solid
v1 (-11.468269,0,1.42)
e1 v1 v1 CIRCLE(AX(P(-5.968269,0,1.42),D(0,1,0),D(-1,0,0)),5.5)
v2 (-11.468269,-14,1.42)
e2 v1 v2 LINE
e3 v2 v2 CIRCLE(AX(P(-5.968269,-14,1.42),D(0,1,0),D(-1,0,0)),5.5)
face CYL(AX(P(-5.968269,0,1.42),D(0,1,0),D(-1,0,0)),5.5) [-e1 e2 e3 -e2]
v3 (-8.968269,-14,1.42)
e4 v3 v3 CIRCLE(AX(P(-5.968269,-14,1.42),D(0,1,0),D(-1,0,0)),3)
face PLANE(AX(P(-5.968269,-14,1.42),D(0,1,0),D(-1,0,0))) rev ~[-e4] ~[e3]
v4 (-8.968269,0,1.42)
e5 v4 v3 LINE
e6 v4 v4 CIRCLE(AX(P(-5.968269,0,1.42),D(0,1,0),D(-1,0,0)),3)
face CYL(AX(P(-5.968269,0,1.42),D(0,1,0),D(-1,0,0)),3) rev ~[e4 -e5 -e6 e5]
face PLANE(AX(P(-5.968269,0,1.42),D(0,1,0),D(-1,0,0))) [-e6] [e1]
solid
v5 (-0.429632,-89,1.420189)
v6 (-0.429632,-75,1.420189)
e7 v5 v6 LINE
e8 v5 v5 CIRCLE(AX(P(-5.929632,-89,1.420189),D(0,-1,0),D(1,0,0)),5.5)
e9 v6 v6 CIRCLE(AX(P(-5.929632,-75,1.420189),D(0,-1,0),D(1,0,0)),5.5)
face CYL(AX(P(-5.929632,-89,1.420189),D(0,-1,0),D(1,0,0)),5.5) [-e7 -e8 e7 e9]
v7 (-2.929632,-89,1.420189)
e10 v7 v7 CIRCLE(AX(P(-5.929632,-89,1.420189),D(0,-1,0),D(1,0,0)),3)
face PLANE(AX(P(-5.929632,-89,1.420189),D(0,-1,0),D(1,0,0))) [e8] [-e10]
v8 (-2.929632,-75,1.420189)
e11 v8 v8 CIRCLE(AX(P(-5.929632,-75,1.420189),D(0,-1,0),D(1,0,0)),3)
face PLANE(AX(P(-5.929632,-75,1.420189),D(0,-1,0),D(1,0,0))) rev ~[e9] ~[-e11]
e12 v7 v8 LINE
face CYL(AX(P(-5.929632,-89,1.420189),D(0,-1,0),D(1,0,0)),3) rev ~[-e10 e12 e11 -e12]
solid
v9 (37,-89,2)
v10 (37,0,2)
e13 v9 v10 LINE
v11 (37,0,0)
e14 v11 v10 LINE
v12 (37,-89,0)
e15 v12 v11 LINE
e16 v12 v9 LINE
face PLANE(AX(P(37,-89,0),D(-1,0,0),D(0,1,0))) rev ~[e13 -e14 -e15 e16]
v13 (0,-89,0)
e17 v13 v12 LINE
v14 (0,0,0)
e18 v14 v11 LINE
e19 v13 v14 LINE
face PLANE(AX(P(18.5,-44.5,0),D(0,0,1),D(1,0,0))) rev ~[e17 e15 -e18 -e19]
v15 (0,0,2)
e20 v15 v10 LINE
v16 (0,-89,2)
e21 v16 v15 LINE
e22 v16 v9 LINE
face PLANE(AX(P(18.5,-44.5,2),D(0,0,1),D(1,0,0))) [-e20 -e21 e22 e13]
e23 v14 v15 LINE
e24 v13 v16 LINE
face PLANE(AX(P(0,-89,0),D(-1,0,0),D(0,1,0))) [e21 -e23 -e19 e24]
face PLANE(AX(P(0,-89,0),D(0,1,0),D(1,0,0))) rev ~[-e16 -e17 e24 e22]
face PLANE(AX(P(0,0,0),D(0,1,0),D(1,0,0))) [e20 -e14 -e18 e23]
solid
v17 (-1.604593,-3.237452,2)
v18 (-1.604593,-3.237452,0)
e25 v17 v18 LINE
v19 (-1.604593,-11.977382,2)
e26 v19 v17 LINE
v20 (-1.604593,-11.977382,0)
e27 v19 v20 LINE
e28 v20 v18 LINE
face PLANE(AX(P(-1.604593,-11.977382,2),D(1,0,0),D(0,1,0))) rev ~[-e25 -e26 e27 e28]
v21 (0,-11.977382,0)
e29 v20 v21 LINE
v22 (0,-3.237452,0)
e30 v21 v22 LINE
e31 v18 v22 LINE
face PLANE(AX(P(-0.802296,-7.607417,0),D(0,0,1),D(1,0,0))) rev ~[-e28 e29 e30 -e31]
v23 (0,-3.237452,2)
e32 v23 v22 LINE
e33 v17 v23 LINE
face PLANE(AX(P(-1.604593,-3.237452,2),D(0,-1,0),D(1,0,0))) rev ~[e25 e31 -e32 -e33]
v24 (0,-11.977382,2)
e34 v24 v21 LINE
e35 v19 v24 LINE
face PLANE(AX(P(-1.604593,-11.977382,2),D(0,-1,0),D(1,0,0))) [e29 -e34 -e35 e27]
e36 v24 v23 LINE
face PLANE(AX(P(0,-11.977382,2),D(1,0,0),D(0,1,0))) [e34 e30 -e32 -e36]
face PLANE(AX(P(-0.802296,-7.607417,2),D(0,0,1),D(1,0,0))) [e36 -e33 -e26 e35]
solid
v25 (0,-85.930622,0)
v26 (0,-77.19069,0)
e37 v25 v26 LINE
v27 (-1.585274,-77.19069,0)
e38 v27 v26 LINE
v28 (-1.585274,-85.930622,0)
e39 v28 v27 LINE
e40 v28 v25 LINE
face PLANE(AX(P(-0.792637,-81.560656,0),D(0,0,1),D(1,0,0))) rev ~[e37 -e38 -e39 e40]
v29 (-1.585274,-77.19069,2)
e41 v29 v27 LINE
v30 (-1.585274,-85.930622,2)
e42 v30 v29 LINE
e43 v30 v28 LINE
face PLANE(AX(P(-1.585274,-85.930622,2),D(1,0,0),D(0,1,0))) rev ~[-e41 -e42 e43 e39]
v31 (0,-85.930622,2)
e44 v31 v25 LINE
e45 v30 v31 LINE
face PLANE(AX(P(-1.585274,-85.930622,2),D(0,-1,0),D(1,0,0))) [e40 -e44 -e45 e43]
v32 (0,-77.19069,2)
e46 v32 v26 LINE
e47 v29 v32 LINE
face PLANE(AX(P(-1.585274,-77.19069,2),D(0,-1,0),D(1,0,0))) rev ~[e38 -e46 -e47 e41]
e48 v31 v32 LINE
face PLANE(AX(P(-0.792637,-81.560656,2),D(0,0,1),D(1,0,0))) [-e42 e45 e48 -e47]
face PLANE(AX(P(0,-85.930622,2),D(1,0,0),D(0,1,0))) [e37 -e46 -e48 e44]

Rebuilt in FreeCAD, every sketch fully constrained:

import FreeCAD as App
import Part
import Sketcher
from FreeCAD import Vector
Q = App.Units.Quantity

doc = App.newDocument("Part")
body = doc.addObject("PartDesign::Body", "Body")

# Sketch on XY plane
sketch1 = body.newObject("Sketcher::SketchObject", "Sketch")
sketch1.AttachmentSupport = (doc.getObject("XY_Plane"), [""])
sketch1.MapMode = "FlatFace"
sketch1.addGeometry([
    Part.LineSegment(Vector(0, 0, 0), Vector(0, -89, 0)),
    Part.LineSegment(Vector(0, -89, 0), Vector(37, -89, 0)),
    Part.LineSegment(Vector(37, -89, 0), Vector(37, 0, 0)),
    Part.LineSegment(Vector(37, 0, 0), Vector(0, 0, 0)),
], False)
sketch1.addConstraint([
    Sketcher.Constraint("Coincident", 0, 2, 1, 1),
    Sketcher.Constraint("Coincident", 1, 2, 2, 1),
    Sketcher.Constraint("Coincident", 2, 2, 3, 1),
    Sketcher.Constraint("Coincident", 3, 2, 0, 1),
    Sketcher.Constraint("Vertical", 0),
    Sketcher.Constraint("Horizontal", 1),
    Sketcher.Constraint("Vertical", 2),
    Sketcher.Constraint("Horizontal", 3),
    Sketcher.Constraint("Coincident", 3, 2, -1, 1),
    Sketcher.Constraint("DistanceX", 1, 1, 1, 2, Q("37 mm")),
    Sketcher.Constraint("DistanceY", 0, 2, 0, 1, Q("89 mm")),
])
pad1 = body.newObject("PartDesign::Pad", "Pad")
pad1.Profile = sketch1
pad1.Length = 2
body2 = doc.addObject("PartDesign::Body", "Body001")

# Sketch on XZ plane
sketch2 = body2.newObject("Sketcher::SketchObject", "Sketch001")
sketch2.AttachmentSupport = (doc.getObject("XZ_Plane001"), [""])
sketch2.MapMode = "FlatFace"
sketch2.AttachmentOffset = App.Placement(Vector(0, 0, 89), App.Rotation())
sketch2.addGeometry([
    Part.Circle(Vector(-5.929632, 1.420189, 0), Vector(0, 0, 1), 5.5),
    Part.Circle(Vector(-5.929632, 1.420189, 0), Vector(0, 0, 1), 3),
], False)
sketch2.addConstraint([
    Sketcher.Constraint("Coincident", 1, 3, 0, 3),
    Sketcher.Constraint("Diameter", 0, Q("11 mm")),
    Sketcher.Constraint("Diameter", 1, Q("6 mm")),
    Sketcher.Constraint("DistanceX", 0, 3, -1, 1, Q("5.929632 mm")),
    Sketcher.Constraint("DistanceY", -1, 1, 0, 3, Q("1.420189 mm")),
])
pad2 = body2.newObject("PartDesign::Pad", "Pad001")
pad2.Profile = sketch2
pad2.Length = 14
pad2.Reversed = True
body3 = doc.addObject("PartDesign::Body", "Body002")

# Sketch on XY plane
sketch3 = body3.newObject("Sketcher::SketchObject", "Sketch002")
sketch3.AttachmentSupport = (doc.getObject("XY_Plane002"), [""])
sketch3.MapMode = "FlatFace"
sketch3.AttachmentOffset = App.Placement(Vector(0, 0, 2), App.Rotation())
sketch3.addGeometry([
    Part.LineSegment(Vector(-1.585274, -77.19069, 0), Vector(-1.585274, -85.930622, 0)),
    Part.LineSegment(Vector(-1.585274, -85.930622, 0), Vector(0, -85.930622, 0)),
    Part.LineSegment(Vector(0, -85.930622, 0), Vector(0, -77.19069, 0)),
    Part.LineSegment(Vector(0, -77.19069, 0), Vector(-1.585274, -77.19069, 0)),
], False)
sketch3.addConstraint([
    Sketcher.Constraint("Coincident", 0, 2, 1, 1),
    Sketcher.Constraint("Coincident", 1, 2, 2, 1),
    Sketcher.Constraint("Coincident", 2, 2, 3, 1),
    Sketcher.Constraint("Coincident", 3, 2, 0, 1),
    Sketcher.Constraint("Vertical", 0),
    Sketcher.Constraint("Horizontal", 1),
    Sketcher.Constraint("Vertical", 2),
    Sketcher.Constraint("Horizontal", 3),
    Sketcher.Constraint("PointOnObject", 1, 2, -2),
    Sketcher.Constraint("DistanceX", 1, 1, 1, 2, Q("1.585274 mm")),
    Sketcher.Constraint("DistanceY", 0, 2, 0, 1, Q("8.739933 mm")),
    Sketcher.Constraint("DistanceY", 2, 2, -1, 1, Q("77.19069 mm")),
])
pad3 = body3.newObject("PartDesign::Pad", "Pad002")
pad3.Profile = sketch3
pad3.Length = 2
pad3.Reversed = True
body4 = doc.addObject("PartDesign::Body", "Body003")

# Sketch on XZ plane
sketch4 = body4.newObject("Sketcher::SketchObject", "Sketch003")
sketch4.AttachmentSupport = (doc.getObject("XZ_Plane003"), [""])
sketch4.MapMode = "FlatFace"
sketch4.addGeometry([
    Part.Circle(Vector(-5.968269, 1.42, 0), Vector(0, 0, 1), 5.5),
    Part.Circle(Vector(-5.968269, 1.42, 0), Vector(0, 0, 1), 3),
], False)
sketch4.addConstraint([
    Sketcher.Constraint("Coincident", 1, 3, 0, 3),
    Sketcher.Constraint("Diameter", 0, Q("11 mm")),
    Sketcher.Constraint("Diameter", 1, Q("6 mm")),
    Sketcher.Constraint("DistanceY", -1, 1, 0, 3, Q("1.42 mm")),
    Sketcher.Constraint("DistanceX", 0, 3, -1, 1, Q("5.968269 mm")),
])
pad4 = body4.newObject("PartDesign::Pad", "Pad003")
pad4.Profile = sketch4
pad4.Length = 14
body5 = doc.addObject("PartDesign::Body", "Body004")

# Sketch on XY plane
sketch5 = body5.newObject("Sketcher::SketchObject", "Sketch004")
sketch5.AttachmentSupport = (doc.getObject("XY_Plane004"), [""])
sketch5.MapMode = "FlatFace"
sketch5.AttachmentOffset = App.Placement(Vector(0, 0, 2), App.Rotation())
sketch5.addGeometry([
    Part.LineSegment(Vector(-1.604593, -3.237452, 0), Vector(-1.604593, -11.977382, 0)),
    Part.LineSegment(Vector(-1.604593, -11.977382, 0), Vector(0, -11.977382, 0)),
    Part.LineSegment(Vector(0, -11.977382, 0), Vector(0, -3.237452, 0)),
    Part.LineSegment(Vector(0, -3.237452, 0), Vector(-1.604593, -3.237452, 0)),
], False)
sketch5.addConstraint([
    Sketcher.Constraint("Coincident", 0, 2, 1, 1),
    Sketcher.Constraint("Coincident", 1, 2, 2, 1),
    Sketcher.Constraint("Coincident", 2, 2, 3, 1),
    Sketcher.Constraint("Coincident", 3, 2, 0, 1),
    Sketcher.Constraint("Vertical", 0),
    Sketcher.Constraint("Horizontal", 1),
    Sketcher.Constraint("Vertical", 2),
    Sketcher.Constraint("Horizontal", 3),
    Sketcher.Constraint("PointOnObject", 1, 2, -2),
    Sketcher.Constraint("DistanceY", 0, 2, 0, 1, Q("8.73993 mm")),
    Sketcher.Constraint("DistanceX", 1, 1, 1, 2, Q("1.604593 mm")),
    Sketcher.Constraint("DistanceY", 0, 2, -1, 1, Q("11.977382 mm")),
])
pad5 = body5.newObject("PartDesign::Pad", "Pad004")
pad5.Profile = sketch5
pad5.Length = 2
pad5.Reversed = True

doc.recompute()
